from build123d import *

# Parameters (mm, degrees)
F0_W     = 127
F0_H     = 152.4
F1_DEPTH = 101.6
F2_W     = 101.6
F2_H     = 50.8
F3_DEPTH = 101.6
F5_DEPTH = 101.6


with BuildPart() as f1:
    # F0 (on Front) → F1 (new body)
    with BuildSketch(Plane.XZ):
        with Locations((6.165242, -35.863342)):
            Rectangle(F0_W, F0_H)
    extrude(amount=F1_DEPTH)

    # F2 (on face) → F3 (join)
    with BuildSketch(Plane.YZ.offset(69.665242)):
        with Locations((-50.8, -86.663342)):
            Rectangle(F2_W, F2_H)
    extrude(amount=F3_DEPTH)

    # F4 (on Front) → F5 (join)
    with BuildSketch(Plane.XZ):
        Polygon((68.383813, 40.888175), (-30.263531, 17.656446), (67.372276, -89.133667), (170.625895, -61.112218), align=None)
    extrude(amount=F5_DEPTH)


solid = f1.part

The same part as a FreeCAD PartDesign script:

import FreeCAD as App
import Part
import Sketcher

V = App.Vector
Q = App.Units.Quantity


def add_polygon(sketch, points):
    """Adds a closed chain of lines whose ends are joined by coincident constraints."""
    first, n = sketch.GeometryCount, len(points)
    for a, b in zip(points, points[1:] + points[:1]):
        sketch.addGeometry(Part.LineSegment(App.Vector(*a, 0), App.Vector(*b, 0)), False)
    for i in range(n):
        sketch.addConstraint(Sketcher.Constraint("Coincident", first + i, 2, first + (i + 1) % n, 1))

doc = App.newDocument("Part")
params = doc.addObject("Spreadsheet::Sheet", "Params")
for row, (alias, value) in enumerate([
    ("sketch1_width", "5 in"),
    ("sketch1_height", "6 in"),
    ("pad1_length", "4 in"),
    ("sketch2_width", "4 in"),
    ("sketch2_height", "2 in"),
    ("pad2_length", "4 in"),
    ("sketch3_length", "3.99 in"),
    ("pad3_length", "4 in"),
], start=1):
    params.set(f"A{row}", alias)
    params.set(f"B{row}", "=" + value)
    params.setAlias(f"B{row}", alias)

body = doc.addObject("PartDesign::Body", "Body")

# Sketch on XZ plane
sketch1 = body.newObject("Sketcher::SketchObject", "Sketch")
sketch1.AttachmentSupport = (doc.getObject("XZ_Plane"), [""])
sketch1.MapMode = "FlatFace"
add_polygon(sketch1, [(-57, 40), (-57, -112), (70, -112), (70, 40)])  # lines 0-3
sketch1.addConstraint([
    Sketcher.Constraint("Vertical", 0),
    Sketcher.Constraint("Horizontal", 1),
    Sketcher.Constraint("Vertical", 2),
    Sketcher.Constraint("Horizontal", 3),
    Sketcher.Constraint("DistanceX", 1, 1, 1, 2, Q("5 in")),
    Sketcher.Constraint("DistanceY", 0, 2, 0, 1, Q("6 in")),
    Sketcher.Constraint("DistanceX", 0, 2, -1, 1, Q("57.334758 mm")),
    Sketcher.Constraint("DistanceY", 0, 2, -1, 1, Q("112.063342 mm")),
])
sketch1.setExpression("Constraints[8]", "Params.sketch1_width")
sketch1.setExpression("Constraints[9]", "Params.sketch1_height")
pad1 = body.newObject("PartDesign::Pad", "Pad")
pad1.Profile = sketch1
pad1.setExpression("Length", "Params.pad1_length")

# Sketch on YZ plane
sketch2 = body.newObject("Sketcher::SketchObject", "Sketch001")
sketch2.AttachmentSupport = (doc.getObject("YZ_Plane"), [""])
sketch2.MapMode = "FlatFace"
sketch2.AttachmentOffset = App.Placement(V(0, 0, 69.665242), App.Rotation())
add_polygon(sketch2, [(-102, -61), (-102, -112), (0, -112), (0, -61)])  # lines 0-3
sketch2.addConstraint([
    Sketcher.Constraint("Vertical", 0),
    Sketcher.Constraint("Horizontal", 1),
    Sketcher.Constraint("Vertical", 2),
    Sketcher.Constraint("Horizontal", 3),
    Sketcher.Constraint("PointOnObject", 1, 2, -2),
    Sketcher.Constraint("DistanceX", 1, 1, 1, 2, Q("4 in")),
    Sketcher.Constraint("DistanceY", 0, 2, 0, 1, Q("2 in")),
    Sketcher.Constraint("DistanceY", 0, 2, -1, 1, Q("112.063342 mm")),
])
sketch2.setExpression("Constraints[9]", "Params.sketch2_width")
sketch2.setExpression("Constraints[10]", "Params.sketch2_height")
pad2 = body.newObject("PartDesign::Pad", "Pad001")
pad2.Profile = sketch2
pad2.setExpression("Length", "Params.pad2_length")

# Sketch on XZ plane
sketch3 = body.newObject("Sketcher::SketchObject", "Sketch002")
sketch3.AttachmentSupport = (doc.getObject("XZ_Plane"), [""])
sketch3.MapMode = "FlatFace"
add_polygon(sketch3, [(68, 41), (-30, 18), (67, -89), (171, -61)])  # lines 0-3
sketch3.addConstraint([
    Sketcher.Constraint("Distance", 0, Q("3.99 in")),
    Sketcher.Constraint("Distance", 2, Q("106.988371 mm")),
    Sketcher.Constraint("Distance", 3, Q("144.42134 mm")),
    Sketcher.Constraint("DistanceX", 0, 2, -1, 1, Q("30.263531 mm")),
    Sketcher.Constraint("DistanceX", 1, 2, 2, 2, Q("103.253619 mm")),
    Sketcher.Constraint("DistanceY", 0, 2, 3, 2, Q("23.231729 mm")),
    Sketcher.Constraint("DistanceY", 1, 2, 3, 2, Q("130.021842 mm")),
    Sketcher.Constraint("DistanceY", -1, 1, 0, 2, Q("17.656446 mm")),
])
sketch3.setExpression("Constraints[4]", "Params.sketch3_length")
pad3 = body.newObject("PartDesign::Pad", "Pad002")
pad3.Profile = sketch3
pad3.setExpression("Length", "Params.pad3_length")

doc.recompute()
